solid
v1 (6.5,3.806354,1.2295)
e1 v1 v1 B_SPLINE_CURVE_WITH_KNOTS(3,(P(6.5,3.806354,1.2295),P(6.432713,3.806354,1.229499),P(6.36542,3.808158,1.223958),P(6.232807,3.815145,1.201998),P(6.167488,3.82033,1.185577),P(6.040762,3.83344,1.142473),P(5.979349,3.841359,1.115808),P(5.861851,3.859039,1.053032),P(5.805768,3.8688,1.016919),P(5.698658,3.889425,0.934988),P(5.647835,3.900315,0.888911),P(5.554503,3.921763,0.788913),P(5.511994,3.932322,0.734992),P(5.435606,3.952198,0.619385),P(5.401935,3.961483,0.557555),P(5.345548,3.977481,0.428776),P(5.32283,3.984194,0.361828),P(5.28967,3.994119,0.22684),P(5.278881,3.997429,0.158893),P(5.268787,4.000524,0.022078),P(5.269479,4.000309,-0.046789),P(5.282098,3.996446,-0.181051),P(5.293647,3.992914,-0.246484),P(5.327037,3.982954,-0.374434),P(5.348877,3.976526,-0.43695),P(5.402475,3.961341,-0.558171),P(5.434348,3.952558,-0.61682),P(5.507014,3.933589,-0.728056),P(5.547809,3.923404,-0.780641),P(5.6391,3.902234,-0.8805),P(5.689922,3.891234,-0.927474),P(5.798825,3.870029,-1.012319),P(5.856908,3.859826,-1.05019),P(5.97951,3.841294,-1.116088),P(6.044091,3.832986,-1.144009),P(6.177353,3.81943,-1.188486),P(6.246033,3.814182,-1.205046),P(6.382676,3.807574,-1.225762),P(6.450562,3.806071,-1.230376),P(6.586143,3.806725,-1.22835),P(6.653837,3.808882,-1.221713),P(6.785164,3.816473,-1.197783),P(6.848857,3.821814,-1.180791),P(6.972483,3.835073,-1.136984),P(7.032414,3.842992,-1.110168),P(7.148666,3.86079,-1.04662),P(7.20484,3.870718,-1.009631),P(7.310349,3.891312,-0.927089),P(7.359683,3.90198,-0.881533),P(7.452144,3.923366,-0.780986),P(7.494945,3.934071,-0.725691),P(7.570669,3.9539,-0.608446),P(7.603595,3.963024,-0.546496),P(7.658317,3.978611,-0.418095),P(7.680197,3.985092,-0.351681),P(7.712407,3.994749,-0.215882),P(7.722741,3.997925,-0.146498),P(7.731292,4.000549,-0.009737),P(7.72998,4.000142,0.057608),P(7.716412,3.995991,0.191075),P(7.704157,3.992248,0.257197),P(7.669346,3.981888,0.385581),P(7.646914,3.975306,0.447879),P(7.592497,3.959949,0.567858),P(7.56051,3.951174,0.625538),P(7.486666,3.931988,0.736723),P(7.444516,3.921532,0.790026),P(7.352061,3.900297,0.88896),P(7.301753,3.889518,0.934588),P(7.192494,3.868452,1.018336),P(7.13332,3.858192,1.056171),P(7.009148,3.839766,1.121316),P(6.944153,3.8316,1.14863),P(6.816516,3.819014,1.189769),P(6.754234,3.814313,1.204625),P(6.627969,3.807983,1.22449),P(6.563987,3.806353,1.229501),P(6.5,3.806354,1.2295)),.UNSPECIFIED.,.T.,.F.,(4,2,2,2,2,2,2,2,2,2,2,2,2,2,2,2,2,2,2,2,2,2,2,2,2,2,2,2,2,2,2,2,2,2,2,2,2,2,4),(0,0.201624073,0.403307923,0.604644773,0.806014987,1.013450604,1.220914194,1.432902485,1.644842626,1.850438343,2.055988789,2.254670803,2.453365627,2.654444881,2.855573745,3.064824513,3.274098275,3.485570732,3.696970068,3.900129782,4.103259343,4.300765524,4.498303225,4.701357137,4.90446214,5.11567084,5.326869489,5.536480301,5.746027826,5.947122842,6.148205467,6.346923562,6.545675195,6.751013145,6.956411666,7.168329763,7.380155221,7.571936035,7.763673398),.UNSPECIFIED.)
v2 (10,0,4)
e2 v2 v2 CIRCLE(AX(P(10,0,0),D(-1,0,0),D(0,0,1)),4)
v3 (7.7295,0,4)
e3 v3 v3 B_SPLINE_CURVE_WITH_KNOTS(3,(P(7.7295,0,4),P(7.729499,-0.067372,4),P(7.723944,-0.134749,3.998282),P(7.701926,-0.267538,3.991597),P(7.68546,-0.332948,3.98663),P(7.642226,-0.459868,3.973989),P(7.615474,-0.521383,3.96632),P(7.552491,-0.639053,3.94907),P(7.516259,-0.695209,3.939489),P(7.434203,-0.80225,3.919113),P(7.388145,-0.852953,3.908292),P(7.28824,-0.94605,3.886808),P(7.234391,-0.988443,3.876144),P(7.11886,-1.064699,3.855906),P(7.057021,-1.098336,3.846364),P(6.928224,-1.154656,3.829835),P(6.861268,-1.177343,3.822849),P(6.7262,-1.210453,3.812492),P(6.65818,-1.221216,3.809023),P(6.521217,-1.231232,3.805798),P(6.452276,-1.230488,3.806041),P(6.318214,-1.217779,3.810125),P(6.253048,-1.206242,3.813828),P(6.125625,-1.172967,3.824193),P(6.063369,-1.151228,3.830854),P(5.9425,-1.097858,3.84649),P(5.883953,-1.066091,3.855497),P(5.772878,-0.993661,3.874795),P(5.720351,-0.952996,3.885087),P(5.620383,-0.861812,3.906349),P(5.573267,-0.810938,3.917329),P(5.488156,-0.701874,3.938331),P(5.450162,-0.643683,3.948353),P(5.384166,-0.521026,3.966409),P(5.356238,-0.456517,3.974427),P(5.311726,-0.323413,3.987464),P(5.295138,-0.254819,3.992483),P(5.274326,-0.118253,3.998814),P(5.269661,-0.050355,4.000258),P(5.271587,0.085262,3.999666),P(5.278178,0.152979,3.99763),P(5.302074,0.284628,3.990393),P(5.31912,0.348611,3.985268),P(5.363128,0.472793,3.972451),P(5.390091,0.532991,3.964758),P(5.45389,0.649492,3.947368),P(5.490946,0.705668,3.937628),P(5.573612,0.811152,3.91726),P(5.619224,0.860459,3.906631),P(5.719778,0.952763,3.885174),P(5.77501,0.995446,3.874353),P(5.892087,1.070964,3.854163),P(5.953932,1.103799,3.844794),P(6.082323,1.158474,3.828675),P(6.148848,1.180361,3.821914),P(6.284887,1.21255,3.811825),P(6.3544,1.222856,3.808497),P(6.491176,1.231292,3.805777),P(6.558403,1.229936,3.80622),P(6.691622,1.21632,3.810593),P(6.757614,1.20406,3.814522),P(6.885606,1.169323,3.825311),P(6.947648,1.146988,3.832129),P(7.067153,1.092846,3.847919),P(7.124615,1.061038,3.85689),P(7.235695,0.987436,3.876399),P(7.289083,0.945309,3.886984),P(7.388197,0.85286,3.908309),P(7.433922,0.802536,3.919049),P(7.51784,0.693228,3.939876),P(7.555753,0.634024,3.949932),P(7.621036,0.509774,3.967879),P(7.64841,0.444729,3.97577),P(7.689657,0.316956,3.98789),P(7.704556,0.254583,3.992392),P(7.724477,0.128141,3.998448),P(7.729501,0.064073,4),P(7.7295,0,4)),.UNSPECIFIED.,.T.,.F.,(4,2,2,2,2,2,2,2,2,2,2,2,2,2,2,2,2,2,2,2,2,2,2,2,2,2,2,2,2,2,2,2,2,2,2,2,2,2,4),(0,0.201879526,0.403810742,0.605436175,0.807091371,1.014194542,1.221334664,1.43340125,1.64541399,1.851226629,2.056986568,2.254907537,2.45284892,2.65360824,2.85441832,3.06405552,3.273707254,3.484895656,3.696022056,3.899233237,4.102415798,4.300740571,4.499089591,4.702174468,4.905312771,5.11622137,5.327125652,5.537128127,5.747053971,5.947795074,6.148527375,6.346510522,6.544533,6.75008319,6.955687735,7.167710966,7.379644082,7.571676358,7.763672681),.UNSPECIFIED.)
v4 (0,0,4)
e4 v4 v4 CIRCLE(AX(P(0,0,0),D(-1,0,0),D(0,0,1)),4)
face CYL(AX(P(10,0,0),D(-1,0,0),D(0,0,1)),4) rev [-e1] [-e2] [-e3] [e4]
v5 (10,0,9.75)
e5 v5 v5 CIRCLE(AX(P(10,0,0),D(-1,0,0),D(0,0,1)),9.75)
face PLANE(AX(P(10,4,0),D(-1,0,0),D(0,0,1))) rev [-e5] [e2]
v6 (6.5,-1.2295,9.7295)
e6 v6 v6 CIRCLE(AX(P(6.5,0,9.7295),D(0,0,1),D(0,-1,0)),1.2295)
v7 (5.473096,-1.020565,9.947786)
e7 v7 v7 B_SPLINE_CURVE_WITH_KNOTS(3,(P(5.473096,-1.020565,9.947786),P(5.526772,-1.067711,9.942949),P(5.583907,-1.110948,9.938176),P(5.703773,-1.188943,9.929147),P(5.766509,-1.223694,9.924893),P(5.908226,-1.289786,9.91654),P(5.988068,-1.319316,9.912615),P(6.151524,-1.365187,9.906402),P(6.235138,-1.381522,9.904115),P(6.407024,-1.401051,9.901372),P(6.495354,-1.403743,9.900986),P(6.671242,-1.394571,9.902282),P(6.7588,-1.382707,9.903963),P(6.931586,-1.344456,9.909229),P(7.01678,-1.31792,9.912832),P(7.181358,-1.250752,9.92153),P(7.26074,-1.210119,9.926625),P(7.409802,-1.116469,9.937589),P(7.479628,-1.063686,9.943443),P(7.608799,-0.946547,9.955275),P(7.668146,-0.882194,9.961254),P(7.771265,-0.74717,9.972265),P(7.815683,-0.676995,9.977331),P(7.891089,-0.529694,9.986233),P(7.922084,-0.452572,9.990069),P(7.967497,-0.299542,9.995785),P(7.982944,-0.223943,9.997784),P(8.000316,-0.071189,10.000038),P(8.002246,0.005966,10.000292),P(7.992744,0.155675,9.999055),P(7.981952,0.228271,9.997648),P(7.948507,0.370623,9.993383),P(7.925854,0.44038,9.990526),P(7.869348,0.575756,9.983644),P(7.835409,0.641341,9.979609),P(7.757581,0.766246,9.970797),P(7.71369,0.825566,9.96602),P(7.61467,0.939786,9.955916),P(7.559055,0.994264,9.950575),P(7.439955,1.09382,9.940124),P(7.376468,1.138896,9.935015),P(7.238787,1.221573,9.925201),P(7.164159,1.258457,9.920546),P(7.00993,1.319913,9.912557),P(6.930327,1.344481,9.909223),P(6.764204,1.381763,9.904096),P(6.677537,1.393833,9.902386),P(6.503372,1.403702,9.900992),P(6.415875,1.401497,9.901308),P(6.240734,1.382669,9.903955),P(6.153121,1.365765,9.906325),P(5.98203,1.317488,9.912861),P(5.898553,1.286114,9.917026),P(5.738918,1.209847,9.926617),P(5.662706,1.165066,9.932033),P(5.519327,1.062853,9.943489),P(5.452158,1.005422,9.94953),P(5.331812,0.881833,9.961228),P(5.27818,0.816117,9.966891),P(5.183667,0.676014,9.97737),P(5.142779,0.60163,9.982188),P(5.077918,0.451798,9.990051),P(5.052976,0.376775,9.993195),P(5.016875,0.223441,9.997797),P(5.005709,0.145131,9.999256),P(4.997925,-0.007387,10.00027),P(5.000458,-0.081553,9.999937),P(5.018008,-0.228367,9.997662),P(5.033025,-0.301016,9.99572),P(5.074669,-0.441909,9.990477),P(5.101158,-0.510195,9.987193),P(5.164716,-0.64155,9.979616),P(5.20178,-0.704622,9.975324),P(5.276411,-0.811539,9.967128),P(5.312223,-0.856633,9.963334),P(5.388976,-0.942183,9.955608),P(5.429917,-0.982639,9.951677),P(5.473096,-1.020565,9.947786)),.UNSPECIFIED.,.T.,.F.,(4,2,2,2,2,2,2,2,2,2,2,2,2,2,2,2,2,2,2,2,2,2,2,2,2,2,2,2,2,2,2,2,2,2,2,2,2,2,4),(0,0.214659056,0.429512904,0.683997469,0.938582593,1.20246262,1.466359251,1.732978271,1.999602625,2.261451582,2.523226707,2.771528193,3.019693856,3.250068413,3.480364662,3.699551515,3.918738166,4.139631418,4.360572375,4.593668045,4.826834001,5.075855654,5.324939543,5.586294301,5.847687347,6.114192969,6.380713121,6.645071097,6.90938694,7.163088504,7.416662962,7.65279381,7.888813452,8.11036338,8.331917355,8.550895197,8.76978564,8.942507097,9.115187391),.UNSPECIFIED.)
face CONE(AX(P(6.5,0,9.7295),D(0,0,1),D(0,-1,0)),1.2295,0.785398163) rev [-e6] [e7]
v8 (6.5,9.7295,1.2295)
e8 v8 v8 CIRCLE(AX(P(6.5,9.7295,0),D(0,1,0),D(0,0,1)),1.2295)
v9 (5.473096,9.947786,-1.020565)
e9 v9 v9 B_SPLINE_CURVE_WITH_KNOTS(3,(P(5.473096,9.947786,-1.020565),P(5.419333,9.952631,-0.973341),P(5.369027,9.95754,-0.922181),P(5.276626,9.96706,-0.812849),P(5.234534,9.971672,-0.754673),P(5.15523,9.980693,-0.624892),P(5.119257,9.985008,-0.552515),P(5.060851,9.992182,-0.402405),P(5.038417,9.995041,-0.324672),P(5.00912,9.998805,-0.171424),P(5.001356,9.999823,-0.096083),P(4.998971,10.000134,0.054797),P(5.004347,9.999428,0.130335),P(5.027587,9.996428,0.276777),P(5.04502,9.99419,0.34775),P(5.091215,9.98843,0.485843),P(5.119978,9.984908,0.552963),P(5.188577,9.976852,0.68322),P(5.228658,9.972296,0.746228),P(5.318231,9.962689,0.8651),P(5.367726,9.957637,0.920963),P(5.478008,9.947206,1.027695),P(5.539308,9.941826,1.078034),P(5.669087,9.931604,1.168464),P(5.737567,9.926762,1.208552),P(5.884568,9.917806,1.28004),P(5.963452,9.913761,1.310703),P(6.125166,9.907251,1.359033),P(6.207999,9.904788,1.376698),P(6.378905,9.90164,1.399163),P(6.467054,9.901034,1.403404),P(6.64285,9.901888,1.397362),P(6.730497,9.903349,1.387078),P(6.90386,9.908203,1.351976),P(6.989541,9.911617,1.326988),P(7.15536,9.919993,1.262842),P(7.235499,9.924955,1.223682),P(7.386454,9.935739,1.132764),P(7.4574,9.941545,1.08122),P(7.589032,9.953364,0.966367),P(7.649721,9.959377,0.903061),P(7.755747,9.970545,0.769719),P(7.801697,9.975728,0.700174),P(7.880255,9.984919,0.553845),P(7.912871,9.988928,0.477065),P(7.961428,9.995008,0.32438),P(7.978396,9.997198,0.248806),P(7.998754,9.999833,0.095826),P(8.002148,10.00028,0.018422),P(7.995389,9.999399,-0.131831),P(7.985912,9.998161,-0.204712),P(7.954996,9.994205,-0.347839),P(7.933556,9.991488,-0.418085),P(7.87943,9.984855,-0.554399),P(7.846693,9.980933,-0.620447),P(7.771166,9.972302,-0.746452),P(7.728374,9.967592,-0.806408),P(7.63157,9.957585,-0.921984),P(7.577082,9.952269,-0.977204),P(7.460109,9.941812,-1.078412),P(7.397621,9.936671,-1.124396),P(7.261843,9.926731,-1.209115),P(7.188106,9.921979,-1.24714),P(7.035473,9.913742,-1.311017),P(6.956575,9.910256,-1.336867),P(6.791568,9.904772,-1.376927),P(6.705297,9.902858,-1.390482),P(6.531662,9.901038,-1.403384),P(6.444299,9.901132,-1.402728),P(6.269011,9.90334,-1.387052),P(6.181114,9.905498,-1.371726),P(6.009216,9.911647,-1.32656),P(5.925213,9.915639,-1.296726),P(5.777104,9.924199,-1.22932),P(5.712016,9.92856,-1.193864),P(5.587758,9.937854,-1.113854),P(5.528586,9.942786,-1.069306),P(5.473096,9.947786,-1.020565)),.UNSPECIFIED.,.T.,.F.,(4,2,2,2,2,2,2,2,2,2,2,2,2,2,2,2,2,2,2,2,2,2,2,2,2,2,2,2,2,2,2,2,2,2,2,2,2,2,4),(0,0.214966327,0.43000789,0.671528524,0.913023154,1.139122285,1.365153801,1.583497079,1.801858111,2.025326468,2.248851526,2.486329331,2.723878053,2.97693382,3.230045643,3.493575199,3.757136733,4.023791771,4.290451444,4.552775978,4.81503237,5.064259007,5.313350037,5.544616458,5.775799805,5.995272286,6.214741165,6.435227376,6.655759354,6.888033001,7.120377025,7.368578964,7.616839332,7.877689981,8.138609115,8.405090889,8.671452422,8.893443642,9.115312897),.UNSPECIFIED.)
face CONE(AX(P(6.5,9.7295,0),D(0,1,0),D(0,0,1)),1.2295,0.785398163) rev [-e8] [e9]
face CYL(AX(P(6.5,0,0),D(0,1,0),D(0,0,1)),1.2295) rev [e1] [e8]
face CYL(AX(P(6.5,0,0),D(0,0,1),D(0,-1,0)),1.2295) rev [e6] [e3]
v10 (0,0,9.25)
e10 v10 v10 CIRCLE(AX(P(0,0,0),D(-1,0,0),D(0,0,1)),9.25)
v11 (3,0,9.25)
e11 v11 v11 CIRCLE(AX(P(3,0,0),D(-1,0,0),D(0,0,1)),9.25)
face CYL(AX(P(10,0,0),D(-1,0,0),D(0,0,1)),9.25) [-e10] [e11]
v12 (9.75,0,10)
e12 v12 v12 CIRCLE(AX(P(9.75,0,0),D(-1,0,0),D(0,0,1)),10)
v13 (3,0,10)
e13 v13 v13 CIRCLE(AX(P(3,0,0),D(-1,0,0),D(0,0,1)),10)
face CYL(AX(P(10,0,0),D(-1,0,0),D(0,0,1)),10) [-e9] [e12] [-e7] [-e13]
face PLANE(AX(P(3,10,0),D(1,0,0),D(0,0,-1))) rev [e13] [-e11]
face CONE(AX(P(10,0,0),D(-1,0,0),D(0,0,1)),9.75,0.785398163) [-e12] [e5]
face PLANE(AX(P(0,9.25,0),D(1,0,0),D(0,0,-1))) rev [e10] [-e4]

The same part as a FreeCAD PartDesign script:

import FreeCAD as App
import Part
import Sketcher
Q = App.Units.Quantity

doc = App.newDocument("Part")
body = doc.addObject("PartDesign::Body", "Body")

# Sketch on XY plane
sketch1 = body.newObject("Sketcher::SketchObject", "Sketch")
sketch1.AttachmentSupport = (doc.getObject("XY_Plane"), [""])
sketch1.MapMode = "FlatFace"
sketch1.addGeometry([
    Part.LineSegment(App.Vector(0, 4, 0), App.Vector(10, 4, 0)),  # 0
    Part.LineSegment(App.Vector(10, 4, 0), App.Vector(10, 9.75, 0)),  # 1
    Part.LineSegment(App.Vector(10, 9.75, 0), App.Vector(9.75, 10, 0)),  # 2
    Part.LineSegment(App.Vector(9.75, 10, 0), App.Vector(3, 10, 0)),  # 3
    Part.LineSegment(App.Vector(3, 10, 0), App.Vector(3, 9.25, 0)),  # 4
    Part.LineSegment(App.Vector(3, 9.25, 0), App.Vector(0, 9.25, 0)),  # 5
    Part.LineSegment(App.Vector(0, 9.25, 0), App.Vector(0, 4, 0)),  # 6
], False)
sketch1.addConstraint([
    Sketcher.Constraint("Coincident", 0, 2, 1, 1),
    Sketcher.Constraint("Coincident", 1, 2, 2, 1),
    Sketcher.Constraint("Coincident", 2, 2, 3, 1),
    Sketcher.Constraint("Coincident", 3, 2, 4, 1),
    Sketcher.Constraint("Coincident", 4, 2, 5, 1),
    Sketcher.Constraint("Coincident", 5, 2, 6, 1),
    Sketcher.Constraint("Coincident", 6, 2, 0, 1),
    Sketcher.Constraint("Horizontal", 0),
    Sketcher.Constraint("Vertical", 1),
    Sketcher.Constraint("Horizontal", 3),
    Sketcher.Constraint("Vertical", 4),
    Sketcher.Constraint("Horizontal", 5),
    Sketcher.Constraint("Vertical", 6),
    Sketcher.Constraint("PointOnObject", 5, 2, -2),
    Sketcher.Constraint("DistanceX", 0, 1, 0, 2, 10.0),
    Sketcher.Constraint("DistanceX", 5, 2, 5, 1, 3.0),
    Sketcher.Constraint("Angle", 2, Q("135 deg")),
    Sketcher.Constraint("DistanceY", -1, 1, 0, 2, 4.0),
    Sketcher.Constraint("DistanceY", -1, 1, 2, 2, 10.0),
    Sketcher.Constraint("DistanceX", 3, 2, 3, 1, 6.75),
    Sketcher.Constraint("DistanceY", 4, 2, 4, 1, 0.75),
])
revolution = body.newObject("PartDesign::Revolution", "Revolution")
revolution.Profile = sketch1
revolution.ReferenceAxis = (sketch1, ["H_Axis"])
revolution.Angle = 360

# Sketch on YZ plane
sketch2 = body.newObject("Sketcher::SketchObject", "Sketch001")
sketch2.AttachmentSupport = (doc.getObject("YZ_Plane"), [""])
sketch2.MapMode = "FlatFace"
sketch2.AttachmentOffset = App.Placement(App.Vector(0, 0, 6.5), App.Rotation())
sketch2.addGeometry([
    Part.LineSegment(App.Vector(10, -1.5, 0), App.Vector(10, 0, 0)),  # 0
    Part.LineSegment(App.Vector(10, 0, 0), App.Vector(0, 0, 0)),  # 1
    Part.LineSegment(App.Vector(0, 0, 0), App.Vector(0, -1.23, 0)),  # 2
    Part.LineSegment(App.Vector(0, -1.23, 0), App.Vector(9.73, -1.23, 0)),  # 3
    Part.LineSegment(App.Vector(9.73, -1.23, 0), App.Vector(10, -1.5, 0)),  # 4
], False)
sketch2.addConstraint([
    Sketcher.Constraint("Coincident", 0, 2, 1, 1),
    Sketcher.Constraint("Coincident", 1, 2, 2, 1),
    Sketcher.Constraint("Coincident", 2, 2, 3, 1),
    Sketcher.Constraint("Coincident", 3, 2, 4, 1),
    Sketcher.Constraint("Coincident", 4, 2, 0, 1),
    Sketcher.Constraint("Vertical", 0),
    Sketcher.Constraint("Horizontal", 1),
    Sketcher.Constraint("Vertical", 2),
    Sketcher.Constraint("Horizontal", 3),
    Sketcher.Constraint("Coincident", 1, 2, -1, 1),
    Sketcher.Constraint("DistanceX", 1, 2, 1, 1, 10.0),
    Sketcher.Constraint("Angle", 4, Q("-45 deg")),
    Sketcher.Constraint("DistanceY", 0, 1, 0, 2, 1.5),
    Sketcher.Constraint("DistanceX", 3, 1, 3, 2, 9.7295),
])
groove = body.newObject("PartDesign::Groove", "Groove")
groove.Profile = sketch2
groove.ReferenceAxis = (sketch2, ["H_Axis"])
groove.Angle = 360

# Sketch on YZ plane
sketch3 = body.newObject("Sketcher::SketchObject", "Sketch002")
sketch3.AttachmentSupport = (doc.getObject("YZ_Plane"), [""])
sketch3.MapMode = "FlatFace"
sketch3.AttachmentOffset = App.Placement(App.Vector(0, 0, 6.5), App.Rotation())
sketch3.addGeometry([
    Part.LineSegment(App.Vector(1.5, 10, 0), App.Vector(0, 10, 0)),  # 0
    Part.LineSegment(App.Vector(0, 10, 0), App.Vector(0, 0, 0)),  # 1
    Part.LineSegment(App.Vector(0, 0, 0), App.Vector(1.23, 0, 0)),  # 2
    Part.LineSegment(App.Vector(1.23, 0, 0), App.Vector(1.23, 9.73, 0)),  # 3
    Part.LineSegment(App.Vector(1.23, 9.73, 0), App.Vector(1.5, 10, 0)),  # 4
], False)
sketch3.addConstraint([
    Sketcher.Constraint("Coincident", 0, 2, 1, 1),
    Sketcher.Constraint("Coincident", 1, 2, 2, 1),
    Sketcher.Constraint("Coincident", 2, 2, 3, 1),
    Sketcher.Constraint("Coincident", 3, 2, 4, 1),
    Sketcher.Constraint("Coincident", 4, 2, 0, 1),
    Sketcher.Constraint("Horizontal", 0),
    Sketcher.Constraint("Vertical", 1),
    Sketcher.Constraint("Horizontal", 2),
    Sketcher.Constraint("Vertical", 3),
    Sketcher.Constraint("Coincident", 1, 2, -1, 1),
    Sketcher.Constraint("DistanceY", 1, 2, 1, 1, 10.0),
    Sketcher.Constraint("Angle", 4, Q("45 deg")),
    Sketcher.Constraint("DistanceX", 0, 2, 0, 1, 1.5),
    Sketcher.Constraint("DistanceX", 2, 1, 2, 2, 1.2295),
])
groove2 = body.newObject("PartDesign::Groove", "Groove001")
groove2.Profile = sketch3
groove2.ReferenceAxis = (sketch3, ["V_Axis"])
groove2.Angle = 360

doc.recompute()
